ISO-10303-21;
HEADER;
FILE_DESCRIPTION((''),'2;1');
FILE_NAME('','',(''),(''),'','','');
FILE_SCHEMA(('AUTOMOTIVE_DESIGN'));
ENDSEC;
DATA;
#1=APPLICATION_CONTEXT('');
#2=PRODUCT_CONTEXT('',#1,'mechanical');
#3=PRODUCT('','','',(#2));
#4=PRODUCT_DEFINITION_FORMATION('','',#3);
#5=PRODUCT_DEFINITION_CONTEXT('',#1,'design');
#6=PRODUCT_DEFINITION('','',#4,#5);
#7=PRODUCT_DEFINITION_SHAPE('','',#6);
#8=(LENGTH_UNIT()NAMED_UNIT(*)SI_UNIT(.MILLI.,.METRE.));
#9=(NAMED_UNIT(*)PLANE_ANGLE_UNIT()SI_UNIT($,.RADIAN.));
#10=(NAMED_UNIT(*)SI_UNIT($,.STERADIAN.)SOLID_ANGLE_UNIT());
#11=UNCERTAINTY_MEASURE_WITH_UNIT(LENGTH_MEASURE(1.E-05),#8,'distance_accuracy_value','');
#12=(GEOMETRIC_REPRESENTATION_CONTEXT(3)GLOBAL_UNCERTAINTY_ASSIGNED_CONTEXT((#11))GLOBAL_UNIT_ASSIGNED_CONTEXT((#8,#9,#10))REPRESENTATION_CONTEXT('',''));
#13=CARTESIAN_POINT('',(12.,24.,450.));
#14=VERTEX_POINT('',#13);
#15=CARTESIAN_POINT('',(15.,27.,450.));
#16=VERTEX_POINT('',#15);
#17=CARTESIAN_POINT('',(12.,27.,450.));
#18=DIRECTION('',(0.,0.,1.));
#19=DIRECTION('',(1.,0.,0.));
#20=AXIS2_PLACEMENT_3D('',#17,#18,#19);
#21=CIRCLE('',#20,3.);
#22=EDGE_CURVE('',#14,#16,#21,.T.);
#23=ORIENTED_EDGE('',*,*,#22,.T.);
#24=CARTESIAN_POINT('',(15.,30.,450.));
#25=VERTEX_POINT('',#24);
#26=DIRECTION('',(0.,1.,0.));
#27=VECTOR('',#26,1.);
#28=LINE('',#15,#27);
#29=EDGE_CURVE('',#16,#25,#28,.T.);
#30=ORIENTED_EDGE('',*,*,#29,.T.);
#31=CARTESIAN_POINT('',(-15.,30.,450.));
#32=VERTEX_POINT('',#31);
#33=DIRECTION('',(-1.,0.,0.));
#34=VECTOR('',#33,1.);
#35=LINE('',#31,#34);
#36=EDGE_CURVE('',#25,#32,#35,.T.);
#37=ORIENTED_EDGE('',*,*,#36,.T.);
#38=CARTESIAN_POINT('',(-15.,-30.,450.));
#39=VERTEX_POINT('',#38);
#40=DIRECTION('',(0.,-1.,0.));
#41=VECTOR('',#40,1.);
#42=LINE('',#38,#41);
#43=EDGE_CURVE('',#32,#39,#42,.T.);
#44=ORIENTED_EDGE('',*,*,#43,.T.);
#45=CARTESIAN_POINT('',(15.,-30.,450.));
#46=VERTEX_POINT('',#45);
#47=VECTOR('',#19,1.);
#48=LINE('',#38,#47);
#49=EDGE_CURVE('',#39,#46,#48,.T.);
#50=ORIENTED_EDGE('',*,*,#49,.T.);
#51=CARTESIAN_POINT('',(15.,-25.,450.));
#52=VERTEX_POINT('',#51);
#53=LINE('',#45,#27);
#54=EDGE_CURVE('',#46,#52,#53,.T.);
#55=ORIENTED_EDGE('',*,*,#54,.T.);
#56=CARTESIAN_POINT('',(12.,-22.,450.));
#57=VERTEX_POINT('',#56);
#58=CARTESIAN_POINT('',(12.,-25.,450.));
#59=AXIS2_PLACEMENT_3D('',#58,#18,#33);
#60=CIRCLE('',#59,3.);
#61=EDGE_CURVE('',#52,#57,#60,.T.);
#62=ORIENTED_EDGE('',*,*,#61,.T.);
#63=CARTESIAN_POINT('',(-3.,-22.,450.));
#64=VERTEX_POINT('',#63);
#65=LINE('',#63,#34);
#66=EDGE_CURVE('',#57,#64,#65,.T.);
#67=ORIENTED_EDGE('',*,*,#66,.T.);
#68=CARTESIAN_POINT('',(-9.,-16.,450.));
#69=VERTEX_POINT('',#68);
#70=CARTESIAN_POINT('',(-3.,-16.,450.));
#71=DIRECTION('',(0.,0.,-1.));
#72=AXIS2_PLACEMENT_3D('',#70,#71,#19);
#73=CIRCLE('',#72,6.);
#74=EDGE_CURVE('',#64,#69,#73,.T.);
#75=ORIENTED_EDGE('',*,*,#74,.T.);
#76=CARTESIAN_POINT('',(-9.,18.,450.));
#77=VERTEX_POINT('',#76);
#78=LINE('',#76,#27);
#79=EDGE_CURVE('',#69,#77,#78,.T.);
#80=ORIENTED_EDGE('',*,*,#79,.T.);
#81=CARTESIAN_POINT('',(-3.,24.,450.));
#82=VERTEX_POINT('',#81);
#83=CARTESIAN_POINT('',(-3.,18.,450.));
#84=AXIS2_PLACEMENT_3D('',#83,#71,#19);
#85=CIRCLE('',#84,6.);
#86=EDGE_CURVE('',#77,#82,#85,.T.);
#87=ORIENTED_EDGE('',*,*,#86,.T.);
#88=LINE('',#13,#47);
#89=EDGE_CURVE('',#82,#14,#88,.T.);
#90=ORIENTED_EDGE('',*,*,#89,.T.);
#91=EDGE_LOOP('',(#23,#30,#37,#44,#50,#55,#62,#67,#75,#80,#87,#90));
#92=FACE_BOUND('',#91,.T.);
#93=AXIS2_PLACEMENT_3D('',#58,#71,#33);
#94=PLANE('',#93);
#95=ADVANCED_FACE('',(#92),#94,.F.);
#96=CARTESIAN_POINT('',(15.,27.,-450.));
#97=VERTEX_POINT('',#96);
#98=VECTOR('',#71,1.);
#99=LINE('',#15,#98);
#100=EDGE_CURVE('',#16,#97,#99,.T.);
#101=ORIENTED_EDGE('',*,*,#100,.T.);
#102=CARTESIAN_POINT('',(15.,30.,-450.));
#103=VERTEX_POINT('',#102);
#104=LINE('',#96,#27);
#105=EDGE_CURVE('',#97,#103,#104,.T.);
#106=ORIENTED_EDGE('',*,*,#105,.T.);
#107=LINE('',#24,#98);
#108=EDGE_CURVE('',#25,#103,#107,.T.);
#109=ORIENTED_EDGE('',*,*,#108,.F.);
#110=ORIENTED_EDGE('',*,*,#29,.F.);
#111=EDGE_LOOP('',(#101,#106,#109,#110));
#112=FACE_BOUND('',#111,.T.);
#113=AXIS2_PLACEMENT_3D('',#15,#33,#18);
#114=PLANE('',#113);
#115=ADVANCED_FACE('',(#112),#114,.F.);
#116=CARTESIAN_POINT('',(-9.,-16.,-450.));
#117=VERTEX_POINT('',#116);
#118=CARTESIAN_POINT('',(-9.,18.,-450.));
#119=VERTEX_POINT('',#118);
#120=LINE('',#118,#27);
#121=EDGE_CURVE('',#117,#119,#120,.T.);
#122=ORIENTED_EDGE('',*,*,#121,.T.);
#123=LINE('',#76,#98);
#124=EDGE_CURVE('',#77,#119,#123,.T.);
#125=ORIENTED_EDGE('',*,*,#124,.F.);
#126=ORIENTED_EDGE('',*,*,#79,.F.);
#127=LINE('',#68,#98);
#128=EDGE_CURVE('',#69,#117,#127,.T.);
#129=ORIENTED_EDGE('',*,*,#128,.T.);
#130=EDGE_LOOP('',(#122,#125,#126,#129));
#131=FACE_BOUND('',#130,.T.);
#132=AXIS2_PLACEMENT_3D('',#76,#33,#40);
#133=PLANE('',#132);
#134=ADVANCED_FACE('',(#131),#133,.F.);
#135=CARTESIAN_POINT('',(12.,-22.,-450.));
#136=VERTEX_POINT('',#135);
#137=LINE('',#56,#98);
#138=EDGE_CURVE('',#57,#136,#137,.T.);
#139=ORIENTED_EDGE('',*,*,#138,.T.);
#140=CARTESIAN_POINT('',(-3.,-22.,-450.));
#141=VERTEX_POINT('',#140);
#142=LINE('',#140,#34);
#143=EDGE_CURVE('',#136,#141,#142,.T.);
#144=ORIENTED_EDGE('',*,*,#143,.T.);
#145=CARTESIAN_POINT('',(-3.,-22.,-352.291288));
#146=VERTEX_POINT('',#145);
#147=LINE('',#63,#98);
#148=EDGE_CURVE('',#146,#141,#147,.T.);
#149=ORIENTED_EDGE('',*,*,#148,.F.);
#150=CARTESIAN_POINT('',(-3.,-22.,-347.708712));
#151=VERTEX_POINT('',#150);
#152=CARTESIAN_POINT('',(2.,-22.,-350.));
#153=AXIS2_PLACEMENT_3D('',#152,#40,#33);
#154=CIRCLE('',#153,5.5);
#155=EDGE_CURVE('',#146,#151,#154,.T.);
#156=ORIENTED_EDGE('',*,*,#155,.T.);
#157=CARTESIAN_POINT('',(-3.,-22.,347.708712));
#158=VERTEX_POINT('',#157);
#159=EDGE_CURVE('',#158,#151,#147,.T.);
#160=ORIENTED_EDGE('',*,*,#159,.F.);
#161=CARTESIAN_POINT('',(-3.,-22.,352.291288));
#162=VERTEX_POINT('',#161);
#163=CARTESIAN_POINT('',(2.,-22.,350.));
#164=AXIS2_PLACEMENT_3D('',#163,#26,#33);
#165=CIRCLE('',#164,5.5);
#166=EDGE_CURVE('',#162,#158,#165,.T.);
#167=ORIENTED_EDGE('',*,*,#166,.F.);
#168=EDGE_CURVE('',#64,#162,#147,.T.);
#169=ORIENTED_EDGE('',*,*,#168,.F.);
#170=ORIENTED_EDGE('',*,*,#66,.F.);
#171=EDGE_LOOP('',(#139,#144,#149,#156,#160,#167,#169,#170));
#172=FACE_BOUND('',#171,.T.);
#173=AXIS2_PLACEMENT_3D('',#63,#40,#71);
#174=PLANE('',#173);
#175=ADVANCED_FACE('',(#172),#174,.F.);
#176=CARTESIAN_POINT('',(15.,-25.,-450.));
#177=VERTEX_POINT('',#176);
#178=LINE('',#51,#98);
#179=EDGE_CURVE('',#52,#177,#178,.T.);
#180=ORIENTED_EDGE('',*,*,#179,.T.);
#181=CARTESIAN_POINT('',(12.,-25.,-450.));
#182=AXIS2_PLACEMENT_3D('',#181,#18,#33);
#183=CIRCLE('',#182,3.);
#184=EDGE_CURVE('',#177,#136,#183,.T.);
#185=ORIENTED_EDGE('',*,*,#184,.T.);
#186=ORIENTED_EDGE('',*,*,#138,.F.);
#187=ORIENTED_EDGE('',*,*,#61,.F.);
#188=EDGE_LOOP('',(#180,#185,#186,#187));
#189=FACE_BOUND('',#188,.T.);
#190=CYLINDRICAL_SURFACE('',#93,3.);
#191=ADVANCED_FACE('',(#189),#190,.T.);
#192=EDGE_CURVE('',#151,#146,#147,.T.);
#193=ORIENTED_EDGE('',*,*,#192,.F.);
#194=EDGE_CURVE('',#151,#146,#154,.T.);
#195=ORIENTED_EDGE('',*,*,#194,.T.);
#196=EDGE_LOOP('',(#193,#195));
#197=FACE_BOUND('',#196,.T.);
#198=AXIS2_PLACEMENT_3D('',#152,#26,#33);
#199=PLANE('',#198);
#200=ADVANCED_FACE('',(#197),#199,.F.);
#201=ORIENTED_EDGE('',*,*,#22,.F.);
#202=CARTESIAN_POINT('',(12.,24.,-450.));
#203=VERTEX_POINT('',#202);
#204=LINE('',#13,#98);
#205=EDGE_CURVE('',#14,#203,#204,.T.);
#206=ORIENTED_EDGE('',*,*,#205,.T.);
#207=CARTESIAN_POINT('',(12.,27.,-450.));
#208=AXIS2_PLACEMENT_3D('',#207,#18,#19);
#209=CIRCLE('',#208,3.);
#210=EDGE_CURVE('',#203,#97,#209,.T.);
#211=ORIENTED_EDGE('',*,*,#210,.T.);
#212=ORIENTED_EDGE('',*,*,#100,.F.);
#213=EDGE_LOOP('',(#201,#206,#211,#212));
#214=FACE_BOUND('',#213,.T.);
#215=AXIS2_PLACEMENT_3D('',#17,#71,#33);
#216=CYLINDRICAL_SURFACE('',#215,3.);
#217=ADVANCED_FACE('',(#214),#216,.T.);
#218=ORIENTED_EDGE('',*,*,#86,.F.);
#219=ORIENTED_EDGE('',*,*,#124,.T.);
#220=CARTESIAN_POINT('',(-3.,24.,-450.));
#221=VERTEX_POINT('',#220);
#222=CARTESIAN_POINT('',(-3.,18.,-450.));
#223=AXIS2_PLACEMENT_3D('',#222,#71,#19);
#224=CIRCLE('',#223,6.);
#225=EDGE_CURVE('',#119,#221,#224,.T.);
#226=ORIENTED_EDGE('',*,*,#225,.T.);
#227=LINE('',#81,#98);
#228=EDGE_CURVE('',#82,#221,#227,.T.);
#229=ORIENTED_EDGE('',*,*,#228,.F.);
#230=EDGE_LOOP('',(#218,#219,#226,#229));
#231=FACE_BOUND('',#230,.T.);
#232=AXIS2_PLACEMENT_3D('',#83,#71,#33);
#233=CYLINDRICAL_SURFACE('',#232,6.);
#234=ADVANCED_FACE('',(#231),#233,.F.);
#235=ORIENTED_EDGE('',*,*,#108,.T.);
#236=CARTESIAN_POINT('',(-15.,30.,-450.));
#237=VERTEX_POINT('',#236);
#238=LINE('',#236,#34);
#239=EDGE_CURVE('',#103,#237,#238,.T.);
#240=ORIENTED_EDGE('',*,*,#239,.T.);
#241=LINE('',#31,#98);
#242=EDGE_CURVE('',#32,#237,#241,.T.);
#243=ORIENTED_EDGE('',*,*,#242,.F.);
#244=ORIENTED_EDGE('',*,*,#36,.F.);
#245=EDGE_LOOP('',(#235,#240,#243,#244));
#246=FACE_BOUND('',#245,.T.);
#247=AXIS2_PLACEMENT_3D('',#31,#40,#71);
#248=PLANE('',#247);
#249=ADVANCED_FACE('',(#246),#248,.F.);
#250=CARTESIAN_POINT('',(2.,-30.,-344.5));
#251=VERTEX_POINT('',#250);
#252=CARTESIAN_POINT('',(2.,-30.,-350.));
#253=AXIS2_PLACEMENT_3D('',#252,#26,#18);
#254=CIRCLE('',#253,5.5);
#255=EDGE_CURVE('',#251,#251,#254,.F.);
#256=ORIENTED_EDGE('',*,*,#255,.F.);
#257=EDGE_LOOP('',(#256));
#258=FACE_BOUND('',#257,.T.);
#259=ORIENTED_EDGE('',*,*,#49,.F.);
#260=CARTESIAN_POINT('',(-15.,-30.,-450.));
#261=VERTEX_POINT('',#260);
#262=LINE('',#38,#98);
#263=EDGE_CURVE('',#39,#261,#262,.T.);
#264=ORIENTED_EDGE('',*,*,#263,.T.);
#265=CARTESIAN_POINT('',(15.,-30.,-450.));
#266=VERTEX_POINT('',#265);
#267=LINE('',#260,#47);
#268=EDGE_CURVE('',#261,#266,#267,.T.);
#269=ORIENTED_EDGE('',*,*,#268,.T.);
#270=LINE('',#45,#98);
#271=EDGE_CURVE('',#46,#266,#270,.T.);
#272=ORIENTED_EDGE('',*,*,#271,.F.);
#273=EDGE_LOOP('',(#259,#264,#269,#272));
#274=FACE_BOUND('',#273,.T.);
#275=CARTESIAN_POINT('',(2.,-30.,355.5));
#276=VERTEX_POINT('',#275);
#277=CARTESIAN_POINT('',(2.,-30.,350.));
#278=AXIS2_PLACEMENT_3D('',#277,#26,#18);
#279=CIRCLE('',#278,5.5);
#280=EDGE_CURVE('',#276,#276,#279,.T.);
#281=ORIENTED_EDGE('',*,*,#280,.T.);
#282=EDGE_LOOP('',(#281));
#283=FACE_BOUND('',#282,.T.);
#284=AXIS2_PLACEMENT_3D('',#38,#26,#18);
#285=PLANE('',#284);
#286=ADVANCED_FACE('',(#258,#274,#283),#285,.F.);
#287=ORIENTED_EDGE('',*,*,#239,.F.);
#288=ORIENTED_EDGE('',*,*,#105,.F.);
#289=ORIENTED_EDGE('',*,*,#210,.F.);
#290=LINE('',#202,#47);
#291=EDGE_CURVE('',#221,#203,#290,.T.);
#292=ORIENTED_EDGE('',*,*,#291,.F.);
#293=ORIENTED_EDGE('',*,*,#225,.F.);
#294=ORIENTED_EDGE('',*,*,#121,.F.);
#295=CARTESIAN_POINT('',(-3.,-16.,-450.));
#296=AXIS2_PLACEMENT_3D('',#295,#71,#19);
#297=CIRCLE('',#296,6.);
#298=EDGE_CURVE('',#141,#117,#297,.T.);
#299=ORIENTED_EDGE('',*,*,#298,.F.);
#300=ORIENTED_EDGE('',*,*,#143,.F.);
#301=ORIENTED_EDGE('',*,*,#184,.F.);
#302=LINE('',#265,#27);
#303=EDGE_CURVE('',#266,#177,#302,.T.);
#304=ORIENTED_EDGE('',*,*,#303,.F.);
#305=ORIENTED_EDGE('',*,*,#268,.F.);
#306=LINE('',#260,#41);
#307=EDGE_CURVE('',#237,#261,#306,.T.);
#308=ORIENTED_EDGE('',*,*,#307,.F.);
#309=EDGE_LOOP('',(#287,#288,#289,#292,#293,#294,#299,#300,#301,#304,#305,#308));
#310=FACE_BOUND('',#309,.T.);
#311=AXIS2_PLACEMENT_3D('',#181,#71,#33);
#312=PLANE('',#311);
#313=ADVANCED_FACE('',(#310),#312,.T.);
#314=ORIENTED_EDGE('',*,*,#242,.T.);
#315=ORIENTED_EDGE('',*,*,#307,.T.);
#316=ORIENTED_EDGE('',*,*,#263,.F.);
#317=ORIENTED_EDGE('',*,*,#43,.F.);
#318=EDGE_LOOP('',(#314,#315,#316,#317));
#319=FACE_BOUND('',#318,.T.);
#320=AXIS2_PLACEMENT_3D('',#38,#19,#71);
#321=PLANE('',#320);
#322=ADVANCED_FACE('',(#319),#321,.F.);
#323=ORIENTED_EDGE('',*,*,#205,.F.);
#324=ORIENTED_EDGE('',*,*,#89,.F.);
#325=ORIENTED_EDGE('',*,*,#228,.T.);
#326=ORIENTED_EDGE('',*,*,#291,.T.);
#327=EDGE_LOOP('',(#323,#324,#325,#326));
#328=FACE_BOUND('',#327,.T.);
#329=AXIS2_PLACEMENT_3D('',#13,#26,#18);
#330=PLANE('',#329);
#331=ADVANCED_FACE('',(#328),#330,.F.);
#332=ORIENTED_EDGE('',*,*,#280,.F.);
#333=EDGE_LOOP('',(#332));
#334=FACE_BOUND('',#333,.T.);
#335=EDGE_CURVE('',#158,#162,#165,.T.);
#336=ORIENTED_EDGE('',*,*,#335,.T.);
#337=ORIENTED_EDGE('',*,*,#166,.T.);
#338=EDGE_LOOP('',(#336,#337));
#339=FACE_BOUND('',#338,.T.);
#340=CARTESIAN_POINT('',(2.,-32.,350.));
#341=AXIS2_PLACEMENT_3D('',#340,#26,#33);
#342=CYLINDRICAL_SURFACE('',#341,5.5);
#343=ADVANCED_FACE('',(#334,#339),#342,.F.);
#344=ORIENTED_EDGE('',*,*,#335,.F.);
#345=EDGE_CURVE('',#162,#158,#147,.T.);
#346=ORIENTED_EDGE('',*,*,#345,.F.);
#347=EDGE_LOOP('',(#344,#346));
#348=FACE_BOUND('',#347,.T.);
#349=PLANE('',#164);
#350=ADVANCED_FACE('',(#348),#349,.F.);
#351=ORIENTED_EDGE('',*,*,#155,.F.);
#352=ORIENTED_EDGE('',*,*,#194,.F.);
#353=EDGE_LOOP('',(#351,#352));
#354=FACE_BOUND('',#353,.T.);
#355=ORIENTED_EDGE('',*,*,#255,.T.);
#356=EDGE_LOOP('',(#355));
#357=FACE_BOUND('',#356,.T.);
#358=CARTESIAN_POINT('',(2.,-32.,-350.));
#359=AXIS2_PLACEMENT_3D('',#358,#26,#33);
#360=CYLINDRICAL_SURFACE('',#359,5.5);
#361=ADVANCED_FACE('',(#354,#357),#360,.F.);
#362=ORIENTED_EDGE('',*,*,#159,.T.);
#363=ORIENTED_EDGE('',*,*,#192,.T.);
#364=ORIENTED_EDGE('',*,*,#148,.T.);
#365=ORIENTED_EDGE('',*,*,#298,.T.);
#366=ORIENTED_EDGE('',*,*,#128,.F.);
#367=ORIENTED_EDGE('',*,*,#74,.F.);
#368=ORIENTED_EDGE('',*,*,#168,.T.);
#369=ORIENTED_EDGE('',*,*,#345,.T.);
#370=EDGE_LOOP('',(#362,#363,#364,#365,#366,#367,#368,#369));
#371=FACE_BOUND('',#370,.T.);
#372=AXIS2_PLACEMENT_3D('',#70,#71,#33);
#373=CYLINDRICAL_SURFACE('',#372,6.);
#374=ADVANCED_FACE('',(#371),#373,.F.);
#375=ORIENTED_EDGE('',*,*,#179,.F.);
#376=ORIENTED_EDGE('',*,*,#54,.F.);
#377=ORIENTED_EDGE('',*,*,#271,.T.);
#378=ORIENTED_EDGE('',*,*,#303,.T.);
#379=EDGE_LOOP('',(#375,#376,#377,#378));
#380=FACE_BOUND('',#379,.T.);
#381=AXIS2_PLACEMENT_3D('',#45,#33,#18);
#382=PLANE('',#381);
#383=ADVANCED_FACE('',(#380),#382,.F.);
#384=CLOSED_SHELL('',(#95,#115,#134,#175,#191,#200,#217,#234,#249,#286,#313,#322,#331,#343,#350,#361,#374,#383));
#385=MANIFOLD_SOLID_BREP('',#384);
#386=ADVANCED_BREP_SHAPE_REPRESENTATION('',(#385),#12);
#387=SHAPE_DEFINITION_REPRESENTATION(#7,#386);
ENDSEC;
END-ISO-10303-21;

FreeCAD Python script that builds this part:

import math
import FreeCAD as App
import Part
import Sketcher

V = App.Vector

doc = App.newDocument("Part")
body = doc.addObject("PartDesign::Body", "Body")

# Sketch on XY plane
sketch1 = body.newObject("Sketcher::SketchObject", "Sketch")
sketch1.AttachmentSupport = (doc.getObject("XY_Plane"), [""])
sketch1.MapMode = "FlatFace"
sketch1.addGeometry(Part.LineSegment(V(-3, 24, 0), V(12, 24, 0)), False)
sketch1.addGeometry(Part.ArcOfCircle(Part.Circle(V(12, 27, 0), V(0, 0, 1), 3), math.radians(-90), math.radians(0)), False)
sketch1.addGeometry(Part.LineSegment(V(15, 27, 0), V(15, 30, 0)), False)
sketch1.addGeometry(Part.LineSegment(V(15, 30, 0), V(-15, 30, 0)), False)
sketch1.addGeometry(Part.LineSegment(V(-15, 30, 0), V(-15, -30, 0)), False)
sketch1.addGeometry(Part.LineSegment(V(-15, -30, 0), V(15, -30, 0)), False)
sketch1.addGeometry(Part.LineSegment(V(15, -30, 0), V(15, -25, 0)), False)
sketch1.addGeometry(Part.ArcOfCircle(Part.Circle(V(12, -25, 0), V(0, 0, 1), 3), math.radians(0), math.radians(90)), False)
sketch1.addGeometry(Part.LineSegment(V(12, -22, 0), V(-3, -22, 0)), False)
sketch1.addGeometry(Part.ArcOfCircle(Part.Circle(V(-3, -16, 0), V(0, 0, 1), 6), math.radians(180), math.radians(270)), False)
sketch1.addGeometry(Part.LineSegment(V(-9, -16, 0), V(-9, 18, 0)), False)
sketch1.addGeometry(Part.ArcOfCircle(Part.Circle(V(-3, 18, 0), V(0, 0, 1), 6), math.radians(90), math.radians(180)), False)
sketch1.addConstraint(Sketcher.Constraint("Tangent", 0, 2, 1, 1))
sketch1.addConstraint(Sketcher.Constraint("Tangent", 1, 2, 2, 1))
sketch1.addConstraint(Sketcher.Constraint("Coincident", 2, 2, 3, 1))
sketch1.addConstraint(Sketcher.Constraint("Coincident", 3, 2, 4, 1))
sketch1.addConstraint(Sketcher.Constraint("Coincident", 4, 2, 5, 1))
sketch1.addConstraint(Sketcher.Constraint("Coincident", 5, 2, 6, 1))
sketch1.addConstraint(Sketcher.Constraint("Tangent", 6, 2, 7, 1))
sketch1.addConstraint(Sketcher.Constraint("Tangent", 7, 2, 8, 1))
sketch1.addConstraint(Sketcher.Constraint("Tangent", 8, 2, 9, 2))
sketch1.addConstraint(Sketcher.Constraint("Tangent", 9, 1, 10, 1))
sketch1.addConstraint(Sketcher.Constraint("Tangent", 10, 2, 11, 2))
sketch1.addConstraint(Sketcher.Constraint("Tangent", 11, 1, 0, 1))
sketch1.addConstraint(Sketcher.Constraint("Horizontal", 0))
sketch1.addConstraint(Sketcher.Constraint("Vertical", 2))
sketch1.addConstraint(Sketcher.Constraint("Horizontal", 3))
sketch1.addConstraint(Sketcher.Constraint("Vertical", 4))
sketch1.addConstraint(Sketcher.Constraint("Horizontal", 5))
sketch1.addConstraint(Sketcher.Constraint("Vertical", 6))
sketch1.addConstraint(Sketcher.Constraint("Horizontal", 8))
sketch1.addConstraint(Sketcher.Constraint("Vertical", 10))
sketch1.addConstraint(Sketcher.Constraint("Equal", 1, 7))
sketch1.addConstraint(Sketcher.Constraint("Equal", 9, 11))
sketch1.addConstraint(Sketcher.Constraint("Symmetric", 2, 2, 4, 2, -1, 1))
sketch1.addConstraint(Sketcher.Constraint("Vertical", 1, 3, 7, 3))
sketch1.addConstraint(Sketcher.Constraint("Radius", 1, 3.0))
sketch1.addConstraint(Sketcher.Constraint("Radius", 9, 6.0))
sketch1.addConstraint(Sketcher.Constraint("DistanceX", 0, 1, 0, 2, 15.0))
sketch1.addConstraint(Sketcher.Constraint("DistanceX", 3, 2, 3, 1, 30.0))
sketch1.addConstraint(Sketcher.Constraint("DistanceY", 2, 1, 2, 2, 3.0))
sketch1.addConstraint(Sketcher.Constraint("DistanceY", 4, 2, 4, 1, 60.0))
sketch1.addConstraint(Sketcher.Constraint("DistanceY", 6, 1, 6, 2, 5.0))
pad1 = body.newObject("PartDesign::Pad", "Pad")
pad1.Profile = sketch1
pad1.Length = 900
pad1.Midplane = True

# Sketch on XZ plane
sketch2 = body.newObject("Sketcher::SketchObject", "Sketch001")
sketch2.AttachmentSupport = (doc.getObject("XZ_Plane"), [""])
sketch2.MapMode = "FlatFace"
sketch2.AttachmentOffset = App.Placement(V(0, 0, 22), App.Rotation())
sketch2.addGeometry(Part.Circle(V(2, 350, 0), V(0, 0, 1), 5.5), False)
sketch2.addConstraint(Sketcher.Constraint("Diameter", 0, 11.0))
sketch2.addConstraint(Sketcher.Constraint("DistanceX", -1, 1, 0, 3, 2.0))
sketch2.addConstraint(Sketcher.Constraint("DistanceY", -1, 1, 0, 3, 350.0))
pocket1 = body.newObject("PartDesign::Pocket", "Pocket")
pocket1.Profile = sketch2
pocket1.Length = 10
pocket1.Reversed = True
doc.recompute()

mirrored = body.newObject("PartDesign::Mirrored", "Mirrored")
mirrored.Originals = [pocket1]
mirrored.MirrorPlane = (doc.getObject("XY_Plane"), [""])
body.Tip = mirrored

doc.recompute()
